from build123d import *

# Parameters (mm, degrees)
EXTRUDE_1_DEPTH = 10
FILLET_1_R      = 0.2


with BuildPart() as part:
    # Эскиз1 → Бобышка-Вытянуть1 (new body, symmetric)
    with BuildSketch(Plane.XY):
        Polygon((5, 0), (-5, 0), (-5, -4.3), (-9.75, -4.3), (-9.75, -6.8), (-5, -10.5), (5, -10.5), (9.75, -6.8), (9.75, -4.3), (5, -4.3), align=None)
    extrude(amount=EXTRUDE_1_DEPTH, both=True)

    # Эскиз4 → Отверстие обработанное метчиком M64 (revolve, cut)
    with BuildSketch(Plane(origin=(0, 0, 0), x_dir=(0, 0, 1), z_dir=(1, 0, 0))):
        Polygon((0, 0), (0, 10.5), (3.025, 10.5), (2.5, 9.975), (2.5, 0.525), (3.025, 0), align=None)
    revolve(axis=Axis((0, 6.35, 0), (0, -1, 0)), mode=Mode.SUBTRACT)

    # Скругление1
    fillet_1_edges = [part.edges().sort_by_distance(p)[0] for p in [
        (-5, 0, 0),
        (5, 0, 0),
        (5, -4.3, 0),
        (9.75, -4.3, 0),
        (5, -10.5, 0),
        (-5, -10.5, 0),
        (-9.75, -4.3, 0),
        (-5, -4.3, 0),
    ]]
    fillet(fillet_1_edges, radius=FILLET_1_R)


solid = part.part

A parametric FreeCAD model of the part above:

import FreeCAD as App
import Part
import Sketcher
from FreeCAD import Vector


def edges_at(feature, points):
    """Names of the edges that pass closest to the given points."""
    edges = feature.Shape.Edges
    near = lambda p: min(range(len(edges)), key=lambda i: edges[i].distToShape(Part.Vertex(*p))[0])
    return sorted({f"Edge{near(p) + 1}" for p in points})


def add_polygon(sketch, points):
    """Adds a closed chain of lines whose ends are joined by coincident constraints."""
    first, n = sketch.GeometryCount, len(points)
    for a, b in zip(points, points[1:] + points[:1]):
        sketch.addGeometry(Part.LineSegment(App.Vector(*a, 0), App.Vector(*b, 0)), False)
    for i in range(n):
        sketch.addConstraint(Sketcher.Constraint("Coincident", first + i, 2, first + (i + 1) % n, 1))

doc = App.newDocument("Part")
body = doc.addObject("PartDesign::Body", "Body")

sketch1 = body.newObject("Sketcher::SketchObject", "Sketch")
sketch1.AttachmentSupport = (doc.getObject("XY_Plane"), [""])
sketch1.MapMode = "FlatFace"
add_polygon(sketch1, [(5, 0), (-5, 0), (-5, -4.3), (-9.8, -4.3), (-9.8, -6.8), (-5, -10.5), (5, -10.5), (9.8, -6.8), (9.8, -4.3), (5, -4.3)])
sketch1.addConstraint(Sketcher.Constraint("Horizontal", 0))
sketch1.addConstraint(Sketcher.Constraint("Vertical", 1))
sketch1.addConstraint(Sketcher.Constraint("Horizontal", 2))
sketch1.addConstraint(Sketcher.Constraint("Vertical", 3))
sketch1.addConstraint(Sketcher.Constraint("Horizontal", 5))
sketch1.addConstraint(Sketcher.Constraint("Vertical", 7))
sketch1.addConstraint(Sketcher.Constraint("Horizontal", 8))
sketch1.addConstraint(Sketcher.Constraint("Vertical", 9))
sketch1.addConstraint(Sketcher.Constraint("Symmetric", 0, 2, 9, 2, -1, 1))
sketch1.addConstraint(Sketcher.Constraint("Symmetric", 3, 2, 6, 2, -2))
sketch1.addConstraint(Sketcher.Constraint("Horizontal", 2, 2, 7, 2))
sketch1.addConstraint(Sketcher.Constraint("Vertical", 1, 2, 4, 2))
sketch1.addConstraint(Sketcher.Constraint("Vertical", 5, 2, 8, 2))
sketch1.addConstraint(Sketcher.Constraint("DistanceX", 0, 2, 0, 1, 10.0))
sketch1.addConstraint(Sketcher.Constraint("DistanceY", 1, 2, 1, 1, 4.3))
sketch1.addConstraint(Sketcher.Constraint("DistanceY", 3, 2, 3, 1, 2.5))
sketch1.addConstraint(Sketcher.Constraint("DistanceX", 2, 2, 2, 1, 4.75))
sketch1.addConstraint(Sketcher.Constraint("DistanceY", 4, 2, -1, 1, 10.5))
pad1 = body.newObject("PartDesign::Pad", "Pad")
pad1.Profile = sketch1
pad1.Length = 20
pad1.Midplane = True

sketch2 = body.newObject("Sketcher::SketchObject", "Sketch001")
sketch2.AttachmentSupport = (doc.getObject("YZ_Plane"), [""])
sketch2.MapMode = "FlatFace"
add_polygon(sketch2, [(-10.5, 0), (0, 0), (0, 3), (-0.5, 2.5), (-10, 2.5), (-10.5, 3)])
sketch2.addConstraint(Sketcher.Constraint("Horizontal", 0))
sketch2.addConstraint(Sketcher.Constraint("Vertical", 1))
sketch2.addConstraint(Sketcher.Constraint("Horizontal", 3))
sketch2.addConstraint(Sketcher.Constraint("Vertical", 5))
sketch2.addConstraint(Sketcher.Constraint("Coincident", 0, 2, -1, 1))
sketch2.addConstraint(Sketcher.Constraint("Perpendicular", 2, 4))
sketch2.addConstraint(Sketcher.Constraint("Horizontal", 1, 2, 4, 2))
sketch2.addConstraint(Sketcher.Constraint("Equal", 2, 4))
sketch2.addConstraint(Sketcher.Constraint("DistanceX", 0, 1, 0, 2, 10.5))
sketch2.addConstraint(Sketcher.Constraint("DistanceX", 3, 2, 3, 1, 9.45))
sketch2.addConstraint(Sketcher.Constraint("DistanceY", -1, 1, 2, 2, 2.5))
groove = body.newObject("PartDesign::Groove", "Groove")
groove.Profile = sketch2
groove.ReferenceAxis = (sketch2, ["H_Axis"])
groove.Angle = 360
doc.recompute()

fillet = body.newObject("PartDesign::Fillet", "Fillet")
fillet.Base = (groove, edges_at(groove, [
    (-5, 0, 0),
    (5, 0, 0),
    (5, -4.3, 0),
    (9.75, -4.3, 0),
    (5, -10.5, 0),
    (-5, -10.5, 0),
    (-9.75, -4.3, 0),
    (-5, -4.3, 0),
]))
fillet.Radius = 0.2

doc.recompute()
